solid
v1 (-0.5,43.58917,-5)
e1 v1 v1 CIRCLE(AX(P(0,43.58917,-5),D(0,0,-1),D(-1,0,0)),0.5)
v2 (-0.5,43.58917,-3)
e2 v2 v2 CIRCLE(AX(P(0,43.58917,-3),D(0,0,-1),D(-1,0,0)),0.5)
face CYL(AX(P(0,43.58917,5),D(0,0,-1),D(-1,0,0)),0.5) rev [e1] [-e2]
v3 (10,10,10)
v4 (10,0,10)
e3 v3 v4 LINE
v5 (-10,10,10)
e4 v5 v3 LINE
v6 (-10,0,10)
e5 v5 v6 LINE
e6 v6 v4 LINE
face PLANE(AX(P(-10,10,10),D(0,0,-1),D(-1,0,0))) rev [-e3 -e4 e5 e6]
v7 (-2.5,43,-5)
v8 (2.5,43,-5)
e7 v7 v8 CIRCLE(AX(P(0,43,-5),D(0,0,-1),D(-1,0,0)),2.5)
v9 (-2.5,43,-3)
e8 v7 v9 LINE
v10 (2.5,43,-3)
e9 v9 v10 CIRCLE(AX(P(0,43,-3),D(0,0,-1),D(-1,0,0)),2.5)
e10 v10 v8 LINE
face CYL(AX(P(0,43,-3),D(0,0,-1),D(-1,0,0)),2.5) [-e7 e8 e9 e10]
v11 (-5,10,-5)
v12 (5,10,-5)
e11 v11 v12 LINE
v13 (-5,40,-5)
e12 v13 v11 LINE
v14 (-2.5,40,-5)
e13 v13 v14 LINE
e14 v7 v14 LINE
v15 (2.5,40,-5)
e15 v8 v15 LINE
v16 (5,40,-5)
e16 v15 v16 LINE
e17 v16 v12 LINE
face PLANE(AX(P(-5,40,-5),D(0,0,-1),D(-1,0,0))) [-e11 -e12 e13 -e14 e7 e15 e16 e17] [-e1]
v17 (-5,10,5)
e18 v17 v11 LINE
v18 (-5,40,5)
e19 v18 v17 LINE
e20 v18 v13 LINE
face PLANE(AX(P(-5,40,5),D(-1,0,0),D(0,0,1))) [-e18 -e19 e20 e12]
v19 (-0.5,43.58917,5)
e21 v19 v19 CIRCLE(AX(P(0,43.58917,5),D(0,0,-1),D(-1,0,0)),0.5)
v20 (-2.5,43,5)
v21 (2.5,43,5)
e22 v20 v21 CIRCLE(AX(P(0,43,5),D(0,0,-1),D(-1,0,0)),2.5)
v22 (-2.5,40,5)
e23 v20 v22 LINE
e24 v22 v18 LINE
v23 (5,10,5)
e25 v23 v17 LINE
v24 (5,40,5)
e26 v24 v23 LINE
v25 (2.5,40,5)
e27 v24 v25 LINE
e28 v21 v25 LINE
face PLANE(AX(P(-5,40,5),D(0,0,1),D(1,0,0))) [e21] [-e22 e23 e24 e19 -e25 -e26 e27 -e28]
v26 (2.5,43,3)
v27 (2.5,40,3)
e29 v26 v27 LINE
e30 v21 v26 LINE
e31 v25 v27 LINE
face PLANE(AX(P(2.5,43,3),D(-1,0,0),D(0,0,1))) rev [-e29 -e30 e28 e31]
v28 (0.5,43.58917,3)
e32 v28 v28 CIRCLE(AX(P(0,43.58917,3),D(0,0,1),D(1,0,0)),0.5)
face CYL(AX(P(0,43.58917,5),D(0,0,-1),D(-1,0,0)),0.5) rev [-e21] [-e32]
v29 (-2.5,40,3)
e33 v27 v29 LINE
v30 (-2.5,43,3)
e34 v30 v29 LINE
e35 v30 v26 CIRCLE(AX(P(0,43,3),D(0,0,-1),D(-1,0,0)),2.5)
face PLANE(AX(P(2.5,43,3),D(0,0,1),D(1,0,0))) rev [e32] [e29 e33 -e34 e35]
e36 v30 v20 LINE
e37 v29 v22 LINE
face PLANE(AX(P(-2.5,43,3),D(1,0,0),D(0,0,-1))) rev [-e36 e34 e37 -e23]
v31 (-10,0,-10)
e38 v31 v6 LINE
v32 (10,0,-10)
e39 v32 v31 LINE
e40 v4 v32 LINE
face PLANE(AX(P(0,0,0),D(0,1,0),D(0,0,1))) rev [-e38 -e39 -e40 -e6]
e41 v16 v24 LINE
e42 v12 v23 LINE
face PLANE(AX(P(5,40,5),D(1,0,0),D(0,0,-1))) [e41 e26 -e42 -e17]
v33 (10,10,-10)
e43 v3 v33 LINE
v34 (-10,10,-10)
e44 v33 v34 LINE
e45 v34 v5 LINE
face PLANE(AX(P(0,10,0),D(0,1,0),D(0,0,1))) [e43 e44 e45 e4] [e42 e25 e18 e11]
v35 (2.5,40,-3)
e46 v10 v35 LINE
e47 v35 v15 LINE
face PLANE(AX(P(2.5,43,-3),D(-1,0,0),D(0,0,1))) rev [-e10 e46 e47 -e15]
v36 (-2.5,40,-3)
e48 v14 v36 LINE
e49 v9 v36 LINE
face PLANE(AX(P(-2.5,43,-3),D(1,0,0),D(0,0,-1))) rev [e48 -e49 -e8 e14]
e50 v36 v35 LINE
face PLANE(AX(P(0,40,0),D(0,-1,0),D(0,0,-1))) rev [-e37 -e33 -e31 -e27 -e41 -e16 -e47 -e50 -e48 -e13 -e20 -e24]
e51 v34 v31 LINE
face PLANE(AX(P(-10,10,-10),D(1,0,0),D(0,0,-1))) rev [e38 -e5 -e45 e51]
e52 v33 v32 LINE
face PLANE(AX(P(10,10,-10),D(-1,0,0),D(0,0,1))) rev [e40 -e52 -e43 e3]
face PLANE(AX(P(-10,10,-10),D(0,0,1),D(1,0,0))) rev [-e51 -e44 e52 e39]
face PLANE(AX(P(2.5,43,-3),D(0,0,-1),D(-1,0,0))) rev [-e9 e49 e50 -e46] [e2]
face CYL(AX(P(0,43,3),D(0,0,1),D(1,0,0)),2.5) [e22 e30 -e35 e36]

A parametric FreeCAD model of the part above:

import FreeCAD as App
import Part
import Sketcher

V = App.Vector
Q = App.Units.Quantity


def add_polygon(sketch, points):
    """Adds a closed chain of lines whose ends are joined by coincident constraints."""
    first, n = sketch.GeometryCount, len(points)
    for a, b in zip(points, points[1:] + points[:1]):
        sketch.addGeometry(Part.LineSegment(App.Vector(*a, 0), App.Vector(*b, 0)), False)
    for i in range(n):
        sketch.addConstraint(Sketcher.Constraint("Coincident", first + i, 2, first + (i + 1) % n, 1))

doc = App.newDocument("Part")
body = doc.addObject("PartDesign::Body", "Body")

sketch1 = body.newObject("Sketcher::SketchObject", "Sketch")
sketch1.AttachmentSupport = (doc.getObject("XZ_Plane"), [""])
sketch1.MapMode = "FlatFace"
add_polygon(sketch1, [(-10, -10), (-10, 10), (10, 10), (10, -10)])
sketch1.addConstraint([
    Sketcher.Constraint("Vertical", 0),
    Sketcher.Constraint("Horizontal", 1),
    Sketcher.Constraint("Vertical", 2),
    Sketcher.Constraint("Horizontal", 3),
    Sketcher.Constraint("Symmetric", 0, 2, 2, 2, -1, 1),
    Sketcher.Constraint("Equal", 3, 0),
    Sketcher.Constraint("DistanceX", 1, 1, 1, 2, Q("20 mm")),
])
pad1 = body.newObject("PartDesign::Pad", "Pad")
pad1.Profile = sketch1
pad1.Length = 10
pad1.Reversed = True

sketch2 = body.newObject("Sketcher::SketchObject", "Sketch001")
sketch2.AttachmentSupport = (doc.getObject("XZ_Plane"), [""])
sketch2.MapMode = "FlatFace"
sketch2.AttachmentOffset = App.Placement(V(0, 0, -10), App.Rotation())
add_polygon(sketch2, [(5, -5), (5, 5), (-5, 5), (-5, -5)])
sketch2.addConstraint([
    Sketcher.Constraint("Vertical", 0),
    Sketcher.Constraint("Horizontal", 1),
    Sketcher.Constraint("Vertical", 2),
    Sketcher.Constraint("Horizontal", 3),
    Sketcher.Constraint("Symmetric", 0, 2, 2, 2, -1, 1),
    Sketcher.Constraint("Equal", 3, 0),
    Sketcher.Constraint("DistanceX", 1, 2, 1, 1, Q("10 mm")),
])
pad2 = body.newObject("PartDesign::Pad", "Pad001")
pad2.Profile = sketch2
pad2.Length = 30
pad2.Reversed = True

sketch3 = body.newObject("Sketcher::SketchObject", "Sketch002")
sketch3.AttachmentSupport = (doc.getObject("XZ_Plane"), [""])
sketch3.MapMode = "FlatFace"
sketch3.AttachmentOffset = App.Placement(V(0, 0, -40), App.Rotation())
add_polygon(sketch3, [(-2.5, -5), (-2.5, -3), (2.5, -3), (2.5, -5)])
add_polygon(sketch3, [(-2.5, 3), (-2.5, 5), (2.5, 5), (2.5, 3)])
sketch3.addConstraint([
    Sketcher.Constraint("Vertical", 0),
    Sketcher.Constraint("Horizontal", 1),
    Sketcher.Constraint("Vertical", 2),
    Sketcher.Constraint("Horizontal", 3),
    Sketcher.Constraint("Vertical", 4),
    Sketcher.Constraint("Horizontal", 5),
    Sketcher.Constraint("Vertical", 6),
    Sketcher.Constraint("Horizontal", 7),
    Sketcher.Constraint("Symmetric", 2, 2, 4, 2, -1, 1),
    Sketcher.Constraint("Symmetric", 0, 2, 6, 2, -1, 1),
    Sketcher.Constraint("Vertical", 3, 2, 4, 2),
    Sketcher.Constraint("DistanceX", 1, 1, 1, 2, Q("5 mm")),
    Sketcher.Constraint("DistanceY", 0, 1, 0, 2, Q("2 mm")),
    Sketcher.Constraint("DistanceY", 0, 2, -1, 1, Q("3 mm")),
])
pad3 = body.newObject("PartDesign::Pad", "Pad002")
pad3.Profile = sketch3
pad3.Length = 3
pad3.Reversed = True

sketch4 = body.newObject("Sketcher::SketchObject", "Sketch003")
sketch4.AttachmentSupport = (doc.getObject("XY_Plane"), [""])
sketch4.MapMode = "FlatFace"
sketch4.AttachmentOffset = App.Placement(V(0, 0, -5), App.Rotation())
sketch4.addGeometry(Part.Circle(V(0, 43, 0), V(0, 0, 1), 2.5), False)
sketch4.addConstraint([
    Sketcher.Constraint("PointOnObject", 0, 3, -2),
    Sketcher.Constraint("Diameter", 0, Q("5 mm")),
    Sketcher.Constraint("DistanceY", -1, 1, 0, 3, Q("43 mm")),
])
pad4 = body.newObject("PartDesign::Pad", "Pad003")
pad4.Profile = sketch4
pad4.Length = 2
doc.recompute()

mirrored = body.newObject("PartDesign::Mirrored", "Mirrored")
mirrored.Originals = [pad4]
mirrored.MirrorPlane = (doc.getObject("XY_Plane"), [""])
body.Tip = mirrored

sketch5 = body.newObject("Sketcher::SketchObject", "Sketch004")
sketch5.AttachmentSupport = (doc.getObject("XY_Plane"), [""])
sketch5.MapMode = "FlatFace"
sketch5.AttachmentOffset = App.Placement(V(0, 0, -5), App.Rotation())
sketch5.addGeometry(Part.Circle(V(0, 43.6, 0), V(0, 0, 1), 0.5), False)
sketch5.addConstraint([
    Sketcher.Constraint("PointOnObject", 0, 3, -2),
    Sketcher.Constraint("Diameter", 0, Q("1 mm")),
    Sketcher.Constraint("DistanceY", -1, 1, 0, 3, Q("43.58917 mm")),
])
pocket1 = body.newObject("PartDesign::Pocket", "Pocket")
pocket1.Profile = sketch5
pocket1.Length = 10
pocket1.Reversed = True

doc.recompute()
